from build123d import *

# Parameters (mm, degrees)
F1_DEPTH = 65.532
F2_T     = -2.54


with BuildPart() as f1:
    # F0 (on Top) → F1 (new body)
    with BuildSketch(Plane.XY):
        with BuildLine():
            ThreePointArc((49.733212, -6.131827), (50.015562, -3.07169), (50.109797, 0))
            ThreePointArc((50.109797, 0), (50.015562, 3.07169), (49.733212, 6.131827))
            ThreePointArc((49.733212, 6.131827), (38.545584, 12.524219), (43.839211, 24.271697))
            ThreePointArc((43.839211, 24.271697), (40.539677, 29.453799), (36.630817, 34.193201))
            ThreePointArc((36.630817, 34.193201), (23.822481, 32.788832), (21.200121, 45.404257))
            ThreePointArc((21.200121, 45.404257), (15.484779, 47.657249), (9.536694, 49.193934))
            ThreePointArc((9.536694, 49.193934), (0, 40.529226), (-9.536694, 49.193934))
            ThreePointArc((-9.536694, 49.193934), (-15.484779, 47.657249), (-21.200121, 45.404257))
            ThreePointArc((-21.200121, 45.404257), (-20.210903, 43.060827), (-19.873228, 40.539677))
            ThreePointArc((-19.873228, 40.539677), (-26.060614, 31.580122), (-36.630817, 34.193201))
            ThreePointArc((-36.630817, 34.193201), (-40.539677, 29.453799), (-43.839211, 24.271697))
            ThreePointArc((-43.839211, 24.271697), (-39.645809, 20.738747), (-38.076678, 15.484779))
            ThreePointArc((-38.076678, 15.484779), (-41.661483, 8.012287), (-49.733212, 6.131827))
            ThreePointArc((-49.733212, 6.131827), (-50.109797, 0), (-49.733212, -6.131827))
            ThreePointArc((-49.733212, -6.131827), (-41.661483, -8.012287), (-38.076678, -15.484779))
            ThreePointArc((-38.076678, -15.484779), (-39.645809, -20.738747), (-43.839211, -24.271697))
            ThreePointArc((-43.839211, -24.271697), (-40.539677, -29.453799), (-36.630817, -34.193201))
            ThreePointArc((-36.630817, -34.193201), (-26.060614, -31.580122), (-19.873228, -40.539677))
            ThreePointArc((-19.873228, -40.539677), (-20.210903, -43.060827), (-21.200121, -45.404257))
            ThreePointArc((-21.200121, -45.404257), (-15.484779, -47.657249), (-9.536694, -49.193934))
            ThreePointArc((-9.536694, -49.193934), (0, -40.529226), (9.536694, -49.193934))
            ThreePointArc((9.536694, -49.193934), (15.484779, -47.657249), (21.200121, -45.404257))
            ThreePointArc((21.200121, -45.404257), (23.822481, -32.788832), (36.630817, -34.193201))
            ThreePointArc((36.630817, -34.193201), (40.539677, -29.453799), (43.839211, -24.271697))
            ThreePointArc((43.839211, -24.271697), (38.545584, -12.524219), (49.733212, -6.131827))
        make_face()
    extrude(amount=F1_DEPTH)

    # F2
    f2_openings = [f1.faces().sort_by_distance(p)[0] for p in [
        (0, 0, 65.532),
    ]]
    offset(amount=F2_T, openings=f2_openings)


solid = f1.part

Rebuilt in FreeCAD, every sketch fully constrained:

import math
import FreeCAD as App
import Part
import Sketcher
Q = App.Units.Quantity


def faces_at(feature, points):
    """Names of the faces that lie closest to the given points."""
    faces = feature.Shape.Faces
    near = lambda p: min(range(len(faces)), key=lambda i: faces[i].distToShape(Part.Vertex(*p))[0])
    return sorted({f"Face{near(p) + 1}" for p in points})

doc = App.newDocument("Part")
body = doc.addObject("PartDesign::Body", "Body")

sketch1 = body.newObject("Sketcher::SketchObject", "Sketch")
sketch1.AttachmentSupport = (doc.getObject("XY_Plane"), [""])
sketch1.MapMode = "FlatFace"
sketch1.addGeometry([
    Part.ArcOfCircle(Part.Circle(App.Vector(0.000026, 0.000005, 0), App.Vector(0, 0, 1), 50.109771), math.radians(-7.028785), math.radians(-0.000005)),
    Part.ArcOfCircle(Part.Circle(App.Vector(0.000026, -0.000005, 0), App.Vector(0, 0, 1), 50.109771), math.radians(0.000005), math.radians(7.028785)),
    Part.ArcOfCircle(Part.Circle(App.Vector(47.657248, 15.484779, 0), App.Vector(0, 0, 1), 9.580571), math.radians(113.485611), math.radians(282.514389)),
    Part.ArcOfCircle(Part.Circle(App.Vector(-0.00004, -0.000026, 0), App.Vector(0, 0, 1), 50.109844), math.radians(28.971228), math.radians(43.028767)),
    Part.ArcOfCircle(Part.Circle(App.Vector(29.453799, 40.539677, 0), App.Vector(0, 0, 1), 9.580571), math.radians(149.485613), math.radians(318.514391)),
    Part.ArcOfCircle(Part.Circle(App.Vector(0.000035, 0.000105, 0), App.Vector(0, 0, 1), 50.109686), math.radians(64.971209), math.radians(79.028792)),
    Part.ArcOfCircle(Part.Circle(App.Vector(0, 50.109797, 0), App.Vector(0, 0, 1), 9.580571), math.radians(-174.514384), math.radians(-5.485616)),
    Part.ArcOfCircle(Part.Circle(App.Vector(-0.000035, 0.000105, 0), App.Vector(0, 0, 1), 50.109686), math.radians(100.971208), math.radians(115.028791)),
    Part.ArcOfCircle(Part.Circle(App.Vector(-29.453822, 40.539671, 0), App.Vector(0, 0, 1), 9.580594), math.radians(0.000038), math.radians(30.514351)),
    Part.ArcOfCircle(Part.Circle(App.Vector(-29.453799, 40.539678, 0), App.Vector(0, 0, 1), 9.580571), math.radians(-138.514386), math.radians(-0.000005)),
    Part.ArcOfCircle(Part.Circle(App.Vector(0.00004, -0.000026, 0), App.Vector(0, 0, 1), 50.109844), math.radians(136.971233), math.radians(151.028772)),
    Part.ArcOfCircle(Part.Circle(App.Vector(-47.657247, 15.484781, 0), App.Vector(0, 0, 1), 9.580569), math.radians(-0.00001), math.radians(66.514393)),
    Part.ArcOfCircle(Part.Circle(App.Vector(-47.657248, 15.484778, 0), App.Vector(0, 0, 1), 9.58057), math.radians(-102.51439), math.radians(0.000005)),
    Part.ArcOfCircle(Part.Circle(App.Vector(-0.000102, 0, 0), App.Vector(0, 0, 1), 50.109695), math.radians(172.971209), math.radians(187.028791)),
    Part.ArcOfCircle(Part.Circle(App.Vector(-47.657248, -15.484778, 0), App.Vector(0, 0, 1), 9.58057), math.radians(-0.000005), math.radians(102.51439)),
    Part.ArcOfCircle(Part.Circle(App.Vector(-47.657247, -15.484781, 0), App.Vector(0, 0, 1), 9.580569), math.radians(-66.514393), math.radians(0.00001)),
    Part.ArcOfCircle(Part.Circle(App.Vector(0.00004, 0.000026, 0), App.Vector(0, 0, 1), 50.109844), math.radians(-151.028772), math.radians(-136.971233)),
    Part.ArcOfCircle(Part.Circle(App.Vector(-29.453799, -40.539678, 0), App.Vector(0, 0, 1), 9.580571), math.radians(0.000005), math.radians(138.514386)),
    Part.ArcOfCircle(Part.Circle(App.Vector(-29.453822, -40.539671, 0), App.Vector(0, 0, 1), 9.580594), math.radians(-30.514351), math.radians(-0.000038)),
    Part.ArcOfCircle(Part.Circle(App.Vector(-0.000035, -0.000105, 0), App.Vector(0, 0, 1), 50.109686), math.radians(-115.028791), math.radians(-100.971208)),
    Part.ArcOfCircle(Part.Circle(App.Vector(0, -50.109797, 0), App.Vector(0, 0, 1), 9.580571), math.radians(5.485616), math.radians(174.514384)),
    Part.ArcOfCircle(Part.Circle(App.Vector(0.000035, -0.000105, 0), App.Vector(0, 0, 1), 50.109686), math.radians(-79.028792), math.radians(-64.971209)),
    Part.ArcOfCircle(Part.Circle(App.Vector(29.453799, -40.539677, 0), App.Vector(0, 0, 1), 9.580571), math.radians(41.485609), math.radians(210.514387)),
    Part.ArcOfCircle(Part.Circle(App.Vector(-0.00004, 0.000026, 0), App.Vector(0, 0, 1), 50.109844), math.radians(-43.028767), math.radians(-28.971228)),
    Part.ArcOfCircle(Part.Circle(App.Vector(47.657248, -15.484779, 0), App.Vector(0, 0, 1), 9.580571), math.radians(77.485611), math.radians(246.514389)),
], False)
sketch1.addConstraint([
    Sketcher.Constraint("Tangent", 0, 2, 1, 1),
    Sketcher.Constraint("Coincident", 1, 2, 2, 2),
    Sketcher.Constraint("Coincident", 2, 1, 3, 1),
    Sketcher.Constraint("Coincident", 3, 2, 4, 2),
    Sketcher.Constraint("Coincident", 4, 1, 5, 1),
    Sketcher.Constraint("Coincident", 5, 2, 6, 2),
    Sketcher.Constraint("Coincident", 6, 1, 7, 1),
    Sketcher.Constraint("Coincident", 7, 2, 8, 2),
    Sketcher.Constraint("Tangent", 8, 1, 9, 2),
    Sketcher.Constraint("Coincident", 9, 1, 10, 1),
    Sketcher.Constraint("Coincident", 10, 2, 11, 2),
    Sketcher.Constraint("Tangent", 11, 1, 12, 2),
    Sketcher.Constraint("Coincident", 12, 1, 13, 1),
    Sketcher.Constraint("Coincident", 13, 2, 14, 2),
    Sketcher.Constraint("Tangent", 14, 1, 15, 2),
    Sketcher.Constraint("Coincident", 15, 1, 16, 1),
    Sketcher.Constraint("Coincident", 16, 2, 17, 2),
    Sketcher.Constraint("Tangent", 17, 1, 18, 2),
    Sketcher.Constraint("Coincident", 18, 1, 19, 1),
    Sketcher.Constraint("Coincident", 19, 2, 20, 2),
    Sketcher.Constraint("Coincident", 20, 1, 21, 1),
    Sketcher.Constraint("Coincident", 21, 2, 22, 2),
    Sketcher.Constraint("Coincident", 22, 1, 23, 1),
    Sketcher.Constraint("Coincident", 23, 2, 24, 2),
    Sketcher.Constraint("Coincident", 24, 1, 0, 1),
    Sketcher.Constraint("Equal", 0, 1),
    Sketcher.Constraint("Equal", 2, 4),
    Sketcher.Constraint("Equal", 4, 6),
    Sketcher.Constraint("Equal", 5, 7),
    Sketcher.Constraint("Equal", 6, 9),
    Sketcher.Constraint("Equal", 3, 10),
    Sketcher.Constraint("Equal", 11, 12),
    Sketcher.Constraint("Equal", 12, 14),
    Sketcher.Constraint("Equal", 14, 15),
    Sketcher.Constraint("Equal", 10, 16),
    Sketcher.Constraint("Equal", 14, 17),
    Sketcher.Constraint("Equal", 8, 18),
    Sketcher.Constraint("Equal", 7, 19),
    Sketcher.Constraint("Equal", 17, 20),
    Sketcher.Constraint("Equal", 19, 21),
    Sketcher.Constraint("Equal", 20, 22),
    Sketcher.Constraint("Equal", 16, 23),
    Sketcher.Constraint("Equal", 22, 24),
    Sketcher.Constraint("Symmetric", 2, 3, 14, 3, -1, 1),
    Sketcher.Constraint("Symmetric", 3, 3, 16, 3, -1, 1),
    Sketcher.Constraint("Symmetric", 4, 3, 17, 3, -1, 1),
    Sketcher.Constraint("Symmetric", 5, 3, 19, 3, -1, 1),
    Sketcher.Constraint("Symmetric", 6, 3, 20, 3, -1, 1),
    Sketcher.Constraint("Symmetric", 7, 3, 21, 3, -1, 1),
    Sketcher.Constraint("Symmetric", 9, 3, 22, 3, -1, 1),
    Sketcher.Constraint("Symmetric", 10, 3, 23, 3, -1, 1),
    Sketcher.Constraint("Symmetric", 11, 3, 24, 3, -1, 1),
    Sketcher.Constraint("Symmetric", 1, 2, 13, 2, -1, 1),
    Sketcher.Constraint("Symmetric", 5, 3, 7, 3, -2),
    Sketcher.Constraint("Symmetric", 4, 3, 9, 3, -2),
    Sketcher.Constraint("Symmetric", 3, 3, 10, 3, -2),
    Sketcher.Constraint("Symmetric", 2, 3, 11, 3, -2),
    Sketcher.Constraint("PointOnObject", 6, 3, -2),
    Sketcher.Constraint("PointOnObject", 13, 3, -1),
    Sketcher.Constraint("PointOnObject", 0, 2, -1),
    Sketcher.Constraint("Horizontal", 9, 3, 8, 1),
    Sketcher.Constraint("Horizontal", 12, 3, 11, 1),
    Sketcher.Constraint("Horizontal", 24, 3, 14, 1),
    Sketcher.Constraint("Horizontal", 22, 3, 17, 1),
    Sketcher.Constraint("Vertical", 1, 2, 24, 1),
    Sketcher.Constraint("Radius", 0, 50.109771),
    Sketcher.Constraint("Radius", 2, 9.580571),
    Sketcher.Constraint("Radius", 3, 50.109844),
    Sketcher.Constraint("Radius", 5, 50.109686),
    Sketcher.Constraint("Radius", 8, 9.580594),
    Sketcher.Constraint("Radius", 13, 50.109695),
    Sketcher.Constraint("DistanceX", 3, 3, 4, 3, Q("1.1596 in")),
    Sketcher.Constraint("DistanceY", 4, 1, 5, 2, Q("0.1491999 in")),
    Sketcher.Constraint("DistanceX", -1, 1, 4, 3, 29.453799),
    Sketcher.Constraint("DistanceY", -1, 1, 3, 2, 34.193201),
    Sketcher.Constraint("DistanceY", 2, 3, 4, 3, 25.054898),
    Sketcher.Constraint("DistanceY", 0, 3, 5, 3, 0.000101),
    Sketcher.Constraint("DistanceY", 1, 3, 6, 3, 50.109802),
    Sketcher.Constraint("DistanceX", 2, 1, 1, 2, 5.894001),
    Sketcher.Constraint("DistanceX", 8, 3, 7, 2, 8.253701),
    Sketcher.Constraint("DistanceX", -1, 1, 2, 3, 47.657248),
])
pad1 = body.newObject("PartDesign::Pad", "Pad")
pad1.Profile = sketch1
pad1.Length = Q("2.58 in")
doc.recompute()

thickness = body.newObject("PartDesign::Thickness", "Thickness")
thickness.Base = (pad1, faces_at(pad1, [(0, 0, 65.532)]))
thickness.Value = Q("0.1 in")
thickness.Reversed = True
thickness.Join = "Arc"

doc.recompute()
